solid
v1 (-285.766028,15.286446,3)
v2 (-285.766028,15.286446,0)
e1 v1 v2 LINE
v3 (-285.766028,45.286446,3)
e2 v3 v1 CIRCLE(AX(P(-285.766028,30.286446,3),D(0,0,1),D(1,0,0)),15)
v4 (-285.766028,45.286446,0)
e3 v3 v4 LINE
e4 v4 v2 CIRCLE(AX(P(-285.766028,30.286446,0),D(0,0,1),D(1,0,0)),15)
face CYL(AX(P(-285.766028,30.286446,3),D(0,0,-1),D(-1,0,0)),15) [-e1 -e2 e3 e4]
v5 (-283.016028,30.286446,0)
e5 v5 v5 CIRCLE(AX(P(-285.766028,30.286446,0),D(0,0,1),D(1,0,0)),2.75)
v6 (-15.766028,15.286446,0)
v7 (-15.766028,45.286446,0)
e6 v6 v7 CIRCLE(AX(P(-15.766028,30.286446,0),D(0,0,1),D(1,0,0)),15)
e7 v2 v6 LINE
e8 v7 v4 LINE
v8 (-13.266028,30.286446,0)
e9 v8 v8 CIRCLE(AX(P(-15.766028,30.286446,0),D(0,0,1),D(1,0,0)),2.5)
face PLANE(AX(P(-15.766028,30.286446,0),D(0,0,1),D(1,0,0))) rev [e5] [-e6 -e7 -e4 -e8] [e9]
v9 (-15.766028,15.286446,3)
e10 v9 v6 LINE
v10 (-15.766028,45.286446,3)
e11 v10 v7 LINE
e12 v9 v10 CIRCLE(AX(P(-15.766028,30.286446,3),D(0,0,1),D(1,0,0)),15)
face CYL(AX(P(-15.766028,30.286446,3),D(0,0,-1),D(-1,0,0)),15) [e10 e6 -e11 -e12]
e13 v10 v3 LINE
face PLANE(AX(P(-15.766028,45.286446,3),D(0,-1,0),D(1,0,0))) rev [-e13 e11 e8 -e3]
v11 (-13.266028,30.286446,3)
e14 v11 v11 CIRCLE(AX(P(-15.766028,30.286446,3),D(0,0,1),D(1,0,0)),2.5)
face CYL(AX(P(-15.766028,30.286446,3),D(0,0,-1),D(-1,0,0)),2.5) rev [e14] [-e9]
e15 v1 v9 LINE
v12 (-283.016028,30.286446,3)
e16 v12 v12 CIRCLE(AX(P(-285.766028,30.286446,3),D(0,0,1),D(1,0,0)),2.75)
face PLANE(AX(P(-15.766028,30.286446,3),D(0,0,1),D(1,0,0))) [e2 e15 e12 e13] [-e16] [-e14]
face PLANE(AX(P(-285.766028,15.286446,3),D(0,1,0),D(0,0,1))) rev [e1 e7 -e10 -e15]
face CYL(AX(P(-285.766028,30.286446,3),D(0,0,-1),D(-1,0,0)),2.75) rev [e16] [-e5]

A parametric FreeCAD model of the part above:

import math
import FreeCAD as App
import Part
import Sketcher
from FreeCAD import Vector
Q = App.Units.Quantity

doc = App.newDocument("Part")
body = doc.addObject("PartDesign::Body", "Body")

sketch1 = body.newObject("Sketcher::SketchObject", "Sketch")
sketch1.AttachmentSupport = (doc.getObject("XY_Plane"), [""])
sketch1.MapMode = "FlatFace"
sketch1.addGeometry(Part.LineSegment(Vector(-15.766028, 45.286446, 0), Vector(-285.766028, 45.286446, 0)), False)
sketch1.addGeometry(Part.ArcOfCircle(Part.Circle(Vector(-285.766028, 30.286446, 0), Vector(0, 0, 1), 15), math.radians(90), math.radians(270)), False)
sketch1.addGeometry(Part.LineSegment(Vector(-285.766028, 15.286446, 0), Vector(-15.766028, 15.286446, 0)), False)
sketch1.addGeometry(Part.ArcOfCircle(Part.Circle(Vector(-15.766028, 30.286446, 0), Vector(0, 0, 1), 15), math.radians(-90), math.radians(90)), False)
sketch1.addGeometry(Part.Circle(Vector(-285.766028, 30.286446, 0), Vector(0, 0, 1), 2.75), False)
sketch1.addGeometry(Part.Circle(Vector(-15.766028, 30.286446, 0), Vector(0, 0, 1), 2.5), False)
sketch1.addConstraint(Sketcher.Constraint("Tangent", 0, 2, 1, 1))
sketch1.addConstraint(Sketcher.Constraint("Tangent", 1, 2, 2, 1))
sketch1.addConstraint(Sketcher.Constraint("Tangent", 2, 2, 3, 1))
sketch1.addConstraint(Sketcher.Constraint("Tangent", 3, 2, 0, 1))
sketch1.addConstraint(Sketcher.Constraint("Horizontal", 0))
sketch1.addConstraint(Sketcher.Constraint("Horizontal", 2))
sketch1.addConstraint(Sketcher.Constraint("Coincident", 4, 3, 1, 3))
sketch1.addConstraint(Sketcher.Constraint("Coincident", 5, 3, 3, 3))
sketch1.addConstraint(Sketcher.Constraint("Diameter", 5, Q("5 mm")))
sketch1.addConstraint(Sketcher.Constraint("Radius", 1, Q("15 mm")))
sketch1.addConstraint(Sketcher.Constraint("Diameter", 4, Q("5.5 mm")))
sketch1.addConstraint(Sketcher.Constraint("DistanceX", 0, 2, 0, 1, Q("270 mm")))
sketch1.addConstraint(Sketcher.Constraint("DistanceX", 1, 3, -1, 1, Q("285.766028 mm")))
sketch1.addConstraint(Sketcher.Constraint("DistanceY", -1, 1, 1, 3, Q("30.286446 mm")))
pad1 = body.newObject("PartDesign::Pad", "Pad")
pad1.Profile = sketch1
pad1.Length = 3

doc.recompute()
